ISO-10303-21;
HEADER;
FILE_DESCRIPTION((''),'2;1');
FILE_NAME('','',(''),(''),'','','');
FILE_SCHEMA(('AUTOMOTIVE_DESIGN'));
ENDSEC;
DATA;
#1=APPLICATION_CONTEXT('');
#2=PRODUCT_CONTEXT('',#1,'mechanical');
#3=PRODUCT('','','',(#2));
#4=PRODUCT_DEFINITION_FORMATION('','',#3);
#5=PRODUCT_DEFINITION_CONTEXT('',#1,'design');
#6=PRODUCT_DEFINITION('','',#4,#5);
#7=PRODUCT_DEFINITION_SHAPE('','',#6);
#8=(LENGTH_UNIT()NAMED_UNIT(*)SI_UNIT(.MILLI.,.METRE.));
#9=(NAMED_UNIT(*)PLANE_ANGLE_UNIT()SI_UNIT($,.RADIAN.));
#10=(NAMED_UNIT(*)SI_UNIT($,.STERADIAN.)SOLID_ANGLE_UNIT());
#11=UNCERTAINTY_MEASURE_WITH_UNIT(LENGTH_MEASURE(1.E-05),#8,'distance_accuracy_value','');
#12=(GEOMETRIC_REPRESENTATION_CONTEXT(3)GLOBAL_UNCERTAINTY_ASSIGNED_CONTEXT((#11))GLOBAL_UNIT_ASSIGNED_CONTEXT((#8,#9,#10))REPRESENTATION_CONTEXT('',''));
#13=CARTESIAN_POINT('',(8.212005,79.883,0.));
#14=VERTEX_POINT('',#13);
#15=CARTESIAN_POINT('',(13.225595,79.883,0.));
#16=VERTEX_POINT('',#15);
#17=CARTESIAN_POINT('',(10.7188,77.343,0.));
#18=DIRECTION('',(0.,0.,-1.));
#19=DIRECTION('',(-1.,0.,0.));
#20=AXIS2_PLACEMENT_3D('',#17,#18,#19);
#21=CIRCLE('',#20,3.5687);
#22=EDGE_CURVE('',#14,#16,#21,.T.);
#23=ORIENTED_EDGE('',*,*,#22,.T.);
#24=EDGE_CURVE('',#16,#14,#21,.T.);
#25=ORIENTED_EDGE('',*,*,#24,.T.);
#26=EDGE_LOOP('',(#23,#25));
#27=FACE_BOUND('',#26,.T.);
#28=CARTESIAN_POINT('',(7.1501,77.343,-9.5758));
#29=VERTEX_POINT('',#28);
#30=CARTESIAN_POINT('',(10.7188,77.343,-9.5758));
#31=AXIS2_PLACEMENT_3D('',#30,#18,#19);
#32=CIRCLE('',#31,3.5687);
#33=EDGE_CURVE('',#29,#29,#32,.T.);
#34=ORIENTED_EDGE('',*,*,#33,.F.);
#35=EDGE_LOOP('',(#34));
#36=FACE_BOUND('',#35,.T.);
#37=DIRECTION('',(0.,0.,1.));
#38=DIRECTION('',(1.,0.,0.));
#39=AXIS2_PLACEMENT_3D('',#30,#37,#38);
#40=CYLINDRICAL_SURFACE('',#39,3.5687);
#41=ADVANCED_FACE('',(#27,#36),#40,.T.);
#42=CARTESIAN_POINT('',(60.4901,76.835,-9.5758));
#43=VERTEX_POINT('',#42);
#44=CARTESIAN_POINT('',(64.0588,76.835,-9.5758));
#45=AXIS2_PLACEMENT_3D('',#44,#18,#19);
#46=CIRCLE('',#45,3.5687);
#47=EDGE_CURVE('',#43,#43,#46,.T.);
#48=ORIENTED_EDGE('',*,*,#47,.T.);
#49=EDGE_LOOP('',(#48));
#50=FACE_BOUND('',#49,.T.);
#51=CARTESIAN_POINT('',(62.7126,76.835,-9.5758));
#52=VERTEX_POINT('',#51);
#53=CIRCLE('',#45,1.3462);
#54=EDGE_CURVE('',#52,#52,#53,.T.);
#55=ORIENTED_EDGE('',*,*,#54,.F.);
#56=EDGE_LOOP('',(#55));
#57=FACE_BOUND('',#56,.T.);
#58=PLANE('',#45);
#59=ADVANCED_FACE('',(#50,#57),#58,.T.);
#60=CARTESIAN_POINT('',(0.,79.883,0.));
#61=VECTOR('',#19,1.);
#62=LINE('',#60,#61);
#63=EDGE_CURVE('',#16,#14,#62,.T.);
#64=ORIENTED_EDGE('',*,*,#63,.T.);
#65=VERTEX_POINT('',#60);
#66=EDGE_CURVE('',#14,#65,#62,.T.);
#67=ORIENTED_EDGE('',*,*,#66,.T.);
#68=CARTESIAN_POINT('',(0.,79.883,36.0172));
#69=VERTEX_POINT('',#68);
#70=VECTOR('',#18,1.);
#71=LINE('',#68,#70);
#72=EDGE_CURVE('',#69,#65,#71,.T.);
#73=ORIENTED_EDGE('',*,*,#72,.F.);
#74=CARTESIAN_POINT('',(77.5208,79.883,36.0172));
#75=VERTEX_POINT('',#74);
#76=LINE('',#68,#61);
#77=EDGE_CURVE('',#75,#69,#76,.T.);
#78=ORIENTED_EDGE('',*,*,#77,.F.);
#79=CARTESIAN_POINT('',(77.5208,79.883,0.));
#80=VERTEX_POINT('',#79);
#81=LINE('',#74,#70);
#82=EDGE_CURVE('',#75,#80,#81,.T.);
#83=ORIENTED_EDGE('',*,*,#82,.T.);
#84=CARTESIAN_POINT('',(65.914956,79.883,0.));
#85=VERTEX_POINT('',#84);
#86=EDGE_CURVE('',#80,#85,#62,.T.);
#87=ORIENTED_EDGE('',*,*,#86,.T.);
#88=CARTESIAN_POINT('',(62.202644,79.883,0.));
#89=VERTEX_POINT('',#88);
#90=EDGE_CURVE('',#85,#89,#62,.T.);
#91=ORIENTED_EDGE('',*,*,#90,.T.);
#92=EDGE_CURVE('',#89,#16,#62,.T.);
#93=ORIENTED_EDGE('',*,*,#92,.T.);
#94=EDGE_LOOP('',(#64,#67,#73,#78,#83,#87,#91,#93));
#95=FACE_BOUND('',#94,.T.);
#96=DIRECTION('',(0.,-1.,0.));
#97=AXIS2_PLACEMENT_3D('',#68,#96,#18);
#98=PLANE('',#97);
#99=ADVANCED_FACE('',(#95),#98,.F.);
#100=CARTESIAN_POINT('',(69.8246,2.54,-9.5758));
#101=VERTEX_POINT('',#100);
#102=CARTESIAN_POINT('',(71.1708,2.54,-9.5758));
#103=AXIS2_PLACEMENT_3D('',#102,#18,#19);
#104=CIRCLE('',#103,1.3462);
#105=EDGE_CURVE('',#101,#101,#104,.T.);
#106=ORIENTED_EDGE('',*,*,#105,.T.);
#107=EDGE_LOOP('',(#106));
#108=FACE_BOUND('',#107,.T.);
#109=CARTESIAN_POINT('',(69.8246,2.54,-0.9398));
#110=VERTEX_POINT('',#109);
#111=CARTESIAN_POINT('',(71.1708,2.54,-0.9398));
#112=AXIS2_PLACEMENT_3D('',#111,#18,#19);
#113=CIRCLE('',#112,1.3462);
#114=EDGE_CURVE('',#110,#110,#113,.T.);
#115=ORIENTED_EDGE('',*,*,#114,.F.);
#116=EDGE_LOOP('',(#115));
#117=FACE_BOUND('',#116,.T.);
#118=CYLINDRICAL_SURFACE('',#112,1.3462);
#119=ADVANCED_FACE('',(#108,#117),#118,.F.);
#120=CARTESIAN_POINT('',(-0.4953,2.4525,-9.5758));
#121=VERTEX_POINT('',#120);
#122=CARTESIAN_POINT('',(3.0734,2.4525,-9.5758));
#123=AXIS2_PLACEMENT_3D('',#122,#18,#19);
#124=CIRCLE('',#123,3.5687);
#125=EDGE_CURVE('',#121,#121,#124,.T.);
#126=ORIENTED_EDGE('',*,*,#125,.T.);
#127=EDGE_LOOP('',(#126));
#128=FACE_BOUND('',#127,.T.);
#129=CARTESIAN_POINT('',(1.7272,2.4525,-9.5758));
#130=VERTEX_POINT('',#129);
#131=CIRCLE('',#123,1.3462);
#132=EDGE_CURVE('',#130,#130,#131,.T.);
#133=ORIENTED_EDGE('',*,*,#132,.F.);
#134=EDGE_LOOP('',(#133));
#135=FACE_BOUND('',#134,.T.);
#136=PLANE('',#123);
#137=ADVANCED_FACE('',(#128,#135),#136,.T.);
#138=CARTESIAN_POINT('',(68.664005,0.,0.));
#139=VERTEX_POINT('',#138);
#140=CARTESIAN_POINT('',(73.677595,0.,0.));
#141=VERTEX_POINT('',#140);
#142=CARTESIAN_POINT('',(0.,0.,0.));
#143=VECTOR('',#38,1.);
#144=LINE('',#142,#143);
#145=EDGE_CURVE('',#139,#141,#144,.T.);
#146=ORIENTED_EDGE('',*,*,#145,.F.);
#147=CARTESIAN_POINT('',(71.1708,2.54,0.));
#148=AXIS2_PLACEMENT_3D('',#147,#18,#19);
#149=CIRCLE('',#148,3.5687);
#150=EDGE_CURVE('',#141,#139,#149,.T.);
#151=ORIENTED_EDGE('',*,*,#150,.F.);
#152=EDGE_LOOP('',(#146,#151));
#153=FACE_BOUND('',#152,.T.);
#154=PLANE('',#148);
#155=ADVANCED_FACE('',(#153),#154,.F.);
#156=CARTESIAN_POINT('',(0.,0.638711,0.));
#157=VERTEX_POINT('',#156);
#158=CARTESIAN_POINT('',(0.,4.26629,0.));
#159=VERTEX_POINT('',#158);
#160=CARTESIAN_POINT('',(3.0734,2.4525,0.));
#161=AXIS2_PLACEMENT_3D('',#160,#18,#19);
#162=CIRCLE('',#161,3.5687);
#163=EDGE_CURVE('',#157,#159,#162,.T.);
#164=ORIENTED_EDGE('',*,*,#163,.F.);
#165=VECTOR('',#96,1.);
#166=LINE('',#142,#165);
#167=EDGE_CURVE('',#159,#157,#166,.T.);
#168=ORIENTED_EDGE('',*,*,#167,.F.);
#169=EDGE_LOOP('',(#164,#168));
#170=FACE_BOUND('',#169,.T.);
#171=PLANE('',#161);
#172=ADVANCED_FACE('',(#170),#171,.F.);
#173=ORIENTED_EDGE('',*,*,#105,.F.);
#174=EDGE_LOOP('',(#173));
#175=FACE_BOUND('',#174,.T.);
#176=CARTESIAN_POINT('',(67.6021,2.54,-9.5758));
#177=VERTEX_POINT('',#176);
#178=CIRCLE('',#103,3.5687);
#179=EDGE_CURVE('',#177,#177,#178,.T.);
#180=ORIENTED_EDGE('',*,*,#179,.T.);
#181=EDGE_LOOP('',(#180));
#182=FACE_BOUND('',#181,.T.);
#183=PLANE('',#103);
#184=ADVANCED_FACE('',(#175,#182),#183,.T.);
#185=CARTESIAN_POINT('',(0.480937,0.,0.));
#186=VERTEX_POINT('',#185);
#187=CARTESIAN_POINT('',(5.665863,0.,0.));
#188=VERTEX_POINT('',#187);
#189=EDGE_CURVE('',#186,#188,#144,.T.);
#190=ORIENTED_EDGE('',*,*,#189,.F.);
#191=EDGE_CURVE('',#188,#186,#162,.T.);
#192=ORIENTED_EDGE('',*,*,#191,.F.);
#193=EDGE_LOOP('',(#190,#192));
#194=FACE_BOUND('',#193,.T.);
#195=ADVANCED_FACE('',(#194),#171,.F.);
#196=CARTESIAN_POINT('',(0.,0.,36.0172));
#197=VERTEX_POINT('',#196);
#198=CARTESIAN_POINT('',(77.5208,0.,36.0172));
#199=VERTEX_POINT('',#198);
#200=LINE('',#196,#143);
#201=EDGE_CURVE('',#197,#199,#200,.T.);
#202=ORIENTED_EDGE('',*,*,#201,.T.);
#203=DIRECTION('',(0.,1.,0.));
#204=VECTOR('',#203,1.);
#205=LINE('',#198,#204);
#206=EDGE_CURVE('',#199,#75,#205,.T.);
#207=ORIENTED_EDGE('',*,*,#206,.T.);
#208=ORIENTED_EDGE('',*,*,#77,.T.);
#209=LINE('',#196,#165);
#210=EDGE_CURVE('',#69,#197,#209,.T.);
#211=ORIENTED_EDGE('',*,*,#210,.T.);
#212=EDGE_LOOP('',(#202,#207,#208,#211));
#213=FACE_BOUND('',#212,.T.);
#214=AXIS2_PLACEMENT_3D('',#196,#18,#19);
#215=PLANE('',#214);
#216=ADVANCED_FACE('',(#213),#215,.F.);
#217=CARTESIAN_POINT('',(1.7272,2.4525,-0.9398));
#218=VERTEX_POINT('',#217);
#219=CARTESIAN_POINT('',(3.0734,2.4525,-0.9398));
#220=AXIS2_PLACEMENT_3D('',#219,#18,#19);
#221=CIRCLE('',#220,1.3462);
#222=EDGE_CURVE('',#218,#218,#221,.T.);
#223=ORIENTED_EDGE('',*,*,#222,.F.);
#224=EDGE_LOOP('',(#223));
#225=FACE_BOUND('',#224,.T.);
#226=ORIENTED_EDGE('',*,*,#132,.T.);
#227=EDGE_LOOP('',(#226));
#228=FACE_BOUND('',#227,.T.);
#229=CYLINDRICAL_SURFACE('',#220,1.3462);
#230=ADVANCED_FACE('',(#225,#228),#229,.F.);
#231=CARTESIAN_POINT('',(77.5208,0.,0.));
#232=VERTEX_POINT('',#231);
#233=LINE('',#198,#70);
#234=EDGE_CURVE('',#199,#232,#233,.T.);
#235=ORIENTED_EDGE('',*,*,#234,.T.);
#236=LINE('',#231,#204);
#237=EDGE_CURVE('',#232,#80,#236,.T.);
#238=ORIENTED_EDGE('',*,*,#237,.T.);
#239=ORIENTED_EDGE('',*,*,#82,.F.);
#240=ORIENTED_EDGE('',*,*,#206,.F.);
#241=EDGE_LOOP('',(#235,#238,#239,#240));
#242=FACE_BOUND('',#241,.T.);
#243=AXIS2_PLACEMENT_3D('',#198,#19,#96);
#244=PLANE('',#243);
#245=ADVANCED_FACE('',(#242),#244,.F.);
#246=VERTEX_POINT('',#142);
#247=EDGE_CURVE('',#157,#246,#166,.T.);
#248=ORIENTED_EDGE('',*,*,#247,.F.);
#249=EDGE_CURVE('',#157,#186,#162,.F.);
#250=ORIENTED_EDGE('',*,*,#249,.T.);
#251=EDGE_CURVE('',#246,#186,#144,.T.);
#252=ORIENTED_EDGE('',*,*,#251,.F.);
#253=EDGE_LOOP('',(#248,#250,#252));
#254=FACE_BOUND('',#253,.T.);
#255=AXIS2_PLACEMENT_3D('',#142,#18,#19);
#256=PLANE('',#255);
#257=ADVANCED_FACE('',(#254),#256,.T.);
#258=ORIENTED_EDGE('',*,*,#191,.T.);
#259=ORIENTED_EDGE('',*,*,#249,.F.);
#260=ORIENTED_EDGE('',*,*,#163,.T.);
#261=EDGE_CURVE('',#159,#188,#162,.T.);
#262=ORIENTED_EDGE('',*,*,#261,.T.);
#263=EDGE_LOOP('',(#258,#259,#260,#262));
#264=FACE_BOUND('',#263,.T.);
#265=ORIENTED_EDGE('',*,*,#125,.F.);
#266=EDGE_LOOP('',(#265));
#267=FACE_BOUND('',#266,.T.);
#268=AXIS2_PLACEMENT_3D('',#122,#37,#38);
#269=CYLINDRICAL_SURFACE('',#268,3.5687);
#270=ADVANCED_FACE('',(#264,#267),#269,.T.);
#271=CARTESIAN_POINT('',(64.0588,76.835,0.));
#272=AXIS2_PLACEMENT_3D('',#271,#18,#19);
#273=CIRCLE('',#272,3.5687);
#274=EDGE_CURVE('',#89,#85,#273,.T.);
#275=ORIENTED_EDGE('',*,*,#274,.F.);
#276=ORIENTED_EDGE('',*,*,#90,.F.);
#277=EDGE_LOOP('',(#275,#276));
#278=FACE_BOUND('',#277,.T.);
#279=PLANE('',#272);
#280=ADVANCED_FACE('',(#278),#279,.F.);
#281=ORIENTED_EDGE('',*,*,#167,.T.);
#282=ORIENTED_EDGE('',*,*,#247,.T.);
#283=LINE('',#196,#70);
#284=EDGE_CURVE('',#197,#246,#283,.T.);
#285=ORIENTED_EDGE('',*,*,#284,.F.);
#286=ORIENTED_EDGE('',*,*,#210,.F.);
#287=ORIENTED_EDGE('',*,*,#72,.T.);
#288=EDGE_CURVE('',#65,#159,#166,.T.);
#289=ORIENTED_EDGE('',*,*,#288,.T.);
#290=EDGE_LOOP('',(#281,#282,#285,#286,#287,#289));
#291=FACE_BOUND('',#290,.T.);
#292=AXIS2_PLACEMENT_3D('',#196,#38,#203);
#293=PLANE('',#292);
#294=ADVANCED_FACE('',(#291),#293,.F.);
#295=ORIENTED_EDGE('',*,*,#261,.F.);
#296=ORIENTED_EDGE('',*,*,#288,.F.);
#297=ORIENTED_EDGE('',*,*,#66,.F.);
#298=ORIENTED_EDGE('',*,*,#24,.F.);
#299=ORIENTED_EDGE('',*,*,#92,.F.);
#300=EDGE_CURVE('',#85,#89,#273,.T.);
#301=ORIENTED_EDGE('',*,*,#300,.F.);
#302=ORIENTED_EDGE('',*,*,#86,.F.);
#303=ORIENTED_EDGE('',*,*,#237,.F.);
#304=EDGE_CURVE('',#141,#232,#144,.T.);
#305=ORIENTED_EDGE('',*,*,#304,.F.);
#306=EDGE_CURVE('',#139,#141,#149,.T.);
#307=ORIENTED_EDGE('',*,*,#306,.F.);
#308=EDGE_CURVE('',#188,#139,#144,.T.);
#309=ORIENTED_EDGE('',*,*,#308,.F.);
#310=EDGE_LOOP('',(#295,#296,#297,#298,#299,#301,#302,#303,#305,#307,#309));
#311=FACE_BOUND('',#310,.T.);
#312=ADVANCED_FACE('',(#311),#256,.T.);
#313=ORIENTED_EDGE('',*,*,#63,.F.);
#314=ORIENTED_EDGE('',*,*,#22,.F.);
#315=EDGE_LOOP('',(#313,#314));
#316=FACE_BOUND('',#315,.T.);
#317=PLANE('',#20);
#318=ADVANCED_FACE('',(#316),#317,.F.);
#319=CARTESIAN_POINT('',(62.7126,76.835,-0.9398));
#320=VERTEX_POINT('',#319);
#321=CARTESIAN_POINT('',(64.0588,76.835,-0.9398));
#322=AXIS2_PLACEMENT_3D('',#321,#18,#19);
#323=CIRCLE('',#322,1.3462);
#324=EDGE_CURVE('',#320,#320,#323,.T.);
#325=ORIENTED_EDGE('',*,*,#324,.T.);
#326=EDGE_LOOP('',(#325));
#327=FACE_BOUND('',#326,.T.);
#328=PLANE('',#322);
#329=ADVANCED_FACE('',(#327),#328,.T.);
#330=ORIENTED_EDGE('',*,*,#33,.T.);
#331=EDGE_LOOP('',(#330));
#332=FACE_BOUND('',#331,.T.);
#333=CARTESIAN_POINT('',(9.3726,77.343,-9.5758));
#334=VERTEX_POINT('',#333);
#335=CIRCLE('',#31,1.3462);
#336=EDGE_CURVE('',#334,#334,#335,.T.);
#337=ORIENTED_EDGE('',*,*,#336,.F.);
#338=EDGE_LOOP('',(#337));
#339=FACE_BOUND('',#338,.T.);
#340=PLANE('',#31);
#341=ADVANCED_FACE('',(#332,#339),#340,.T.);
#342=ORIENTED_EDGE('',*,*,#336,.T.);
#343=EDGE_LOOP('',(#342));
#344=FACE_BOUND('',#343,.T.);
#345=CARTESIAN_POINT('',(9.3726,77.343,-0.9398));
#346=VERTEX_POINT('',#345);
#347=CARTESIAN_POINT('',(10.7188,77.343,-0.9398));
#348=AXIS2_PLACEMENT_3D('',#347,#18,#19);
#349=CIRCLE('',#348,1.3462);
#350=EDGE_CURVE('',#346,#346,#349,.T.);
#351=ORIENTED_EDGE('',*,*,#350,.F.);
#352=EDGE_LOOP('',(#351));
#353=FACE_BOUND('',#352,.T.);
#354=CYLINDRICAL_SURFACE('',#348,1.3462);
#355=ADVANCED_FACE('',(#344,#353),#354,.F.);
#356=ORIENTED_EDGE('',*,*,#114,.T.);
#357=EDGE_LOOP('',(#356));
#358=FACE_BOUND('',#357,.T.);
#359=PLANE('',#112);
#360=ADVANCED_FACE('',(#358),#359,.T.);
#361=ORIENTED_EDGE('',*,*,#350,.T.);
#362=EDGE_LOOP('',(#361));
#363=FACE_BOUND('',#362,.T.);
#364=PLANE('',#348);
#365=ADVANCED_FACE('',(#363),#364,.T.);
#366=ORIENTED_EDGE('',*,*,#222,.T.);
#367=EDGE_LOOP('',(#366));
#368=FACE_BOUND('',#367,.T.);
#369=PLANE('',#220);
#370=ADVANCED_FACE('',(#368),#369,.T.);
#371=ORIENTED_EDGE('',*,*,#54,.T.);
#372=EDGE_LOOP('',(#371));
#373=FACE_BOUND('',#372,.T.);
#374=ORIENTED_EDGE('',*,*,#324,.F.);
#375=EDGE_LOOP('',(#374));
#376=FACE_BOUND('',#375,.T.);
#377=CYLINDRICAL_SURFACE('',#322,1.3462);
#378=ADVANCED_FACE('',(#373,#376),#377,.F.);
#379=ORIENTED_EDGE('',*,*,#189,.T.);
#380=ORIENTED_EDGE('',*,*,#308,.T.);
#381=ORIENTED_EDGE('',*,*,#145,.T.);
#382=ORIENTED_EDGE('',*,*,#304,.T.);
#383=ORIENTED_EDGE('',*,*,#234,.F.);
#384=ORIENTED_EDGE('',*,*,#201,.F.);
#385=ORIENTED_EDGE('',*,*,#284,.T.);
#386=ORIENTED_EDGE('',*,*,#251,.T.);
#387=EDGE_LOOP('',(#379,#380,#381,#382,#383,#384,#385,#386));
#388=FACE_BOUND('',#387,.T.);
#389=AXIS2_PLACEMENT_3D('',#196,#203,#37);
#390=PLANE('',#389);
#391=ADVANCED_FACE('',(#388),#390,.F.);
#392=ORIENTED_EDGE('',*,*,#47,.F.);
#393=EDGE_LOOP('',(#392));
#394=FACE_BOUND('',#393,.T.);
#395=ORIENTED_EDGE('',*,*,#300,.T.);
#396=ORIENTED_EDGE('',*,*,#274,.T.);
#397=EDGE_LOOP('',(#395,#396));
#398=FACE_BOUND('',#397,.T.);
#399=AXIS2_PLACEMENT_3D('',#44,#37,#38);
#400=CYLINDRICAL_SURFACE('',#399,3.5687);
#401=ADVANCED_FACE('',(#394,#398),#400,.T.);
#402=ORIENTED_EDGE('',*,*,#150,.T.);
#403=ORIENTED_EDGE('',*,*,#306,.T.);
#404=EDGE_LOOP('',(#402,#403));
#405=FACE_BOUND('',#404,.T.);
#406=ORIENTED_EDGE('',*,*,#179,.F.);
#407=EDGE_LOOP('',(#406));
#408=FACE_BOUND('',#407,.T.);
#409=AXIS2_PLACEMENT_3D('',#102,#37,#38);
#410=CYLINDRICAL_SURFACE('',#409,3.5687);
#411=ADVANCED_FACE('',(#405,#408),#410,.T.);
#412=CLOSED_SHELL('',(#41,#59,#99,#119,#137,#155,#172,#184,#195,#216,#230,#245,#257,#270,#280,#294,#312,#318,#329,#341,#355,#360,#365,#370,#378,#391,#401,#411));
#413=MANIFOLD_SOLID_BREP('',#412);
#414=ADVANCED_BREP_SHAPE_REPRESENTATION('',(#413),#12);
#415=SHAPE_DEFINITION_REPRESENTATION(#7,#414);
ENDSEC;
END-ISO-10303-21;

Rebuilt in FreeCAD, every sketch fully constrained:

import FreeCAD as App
import Part
import Sketcher

V = App.Vector
Q = App.Units.Quantity


def add_polygon(sketch, points):
    """Adds a closed chain of lines whose ends are joined by coincident constraints."""
    first, n = sketch.GeometryCount, len(points)
    for a, b in zip(points, points[1:] + points[:1]):
        sketch.addGeometry(Part.LineSegment(App.Vector(*a, 0), App.Vector(*b, 0)), False)
    for i in range(n):
        sketch.addConstraint(Sketcher.Constraint("Coincident", first + i, 2, first + (i + 1) % n, 1))

doc = App.newDocument("Part")
params = doc.addObject("Spreadsheet::Sheet", "Params")
for row, (alias, value) in enumerate([
    ("sketch1_width", "3.052 in"),
    ("sketch1_height", "3.145 in"),
    ("pad1_length", "1.418 in"),
    ("sketch2_diameter", "0.281 in"),
    ("pad2_length", "0.377 in"),
    ("sketch3_diameter", "0.281 in"),
    ("pad3_length", "0.377 in"),
    ("sketch4_diameter", "0.106 in"),
    ("pocket1_length", "0.34 in"),
], start=1):
    params.set(f"A{row}", alias)
    params.set(f"B{row}", "=" + value)
    params.setAlias(f"B{row}", alias)

body = doc.addObject("PartDesign::Body", "Body")

# Sketch on XY plane
sketch1 = doc.addObject("Sketcher::SketchObject", "Sketch")
body.addObject(sketch1)
sketch1.AttachmentSupport = (doc.XY_Plane, [""])
sketch1.MapMode = "FlatFace"
add_polygon(sketch1, [(0, 79.883), (0, 0), (77.5208, 0), (77.5208, 79.883)])  # lines 0-3
sketch1.addConstraint([
    Sketcher.Constraint("Vertical", 0),
    Sketcher.Constraint("Horizontal", 1),
    Sketcher.Constraint("Vertical", 2),
    Sketcher.Constraint("Horizontal", 3),
    Sketcher.Constraint("Coincident", 0, 2, -1, 1),
    Sketcher.Constraint("DistanceX", 1, 1, 1, 2, Q("3.052 in")),
    Sketcher.Constraint("DistanceY", 0, 2, 0, 1, Q("3.145 in")),
])
sketch1.setExpression("Constraints[9]", "Params.sketch1_width")
sketch1.setExpression("Constraints[10]", "Params.sketch1_height")
pad1 = doc.addObject("PartDesign::Pad", "Pad")
body.addObject(pad1)
pad1.Profile = sketch1
pad1.setExpression("Length", "Params.pad1_length")

# Sketch on XY plane
sketch2 = doc.addObject("Sketcher::SketchObject", "Sketch001")
body.addObject(sketch2)
sketch2.AttachmentSupport = (doc.XY_Plane, [""])
sketch2.MapMode = "FlatFace"
sketch2.addGeometry([
    Part.Circle(V(71.1708, 2.54, 0), V(0, 0, 1), 3.5687),
    Part.Circle(V(3.0734, 2.4525, 0), V(0, 0, 1), 3.5687),
], False)
sketch2.addConstraint([
    Sketcher.Constraint("Equal", 0, 1),
    Sketcher.Constraint("Diameter", 0, Q("0.281 in")),
    Sketcher.Constraint("DistanceY", -1, 1, 0, 3, Q("0.1 in")),
    Sketcher.Constraint("DistanceX", -1, 1, 0, 3, Q("2.802 in")),
    Sketcher.Constraint("DistanceX", -1, 1, 1, 3, Q("0.121 in")),
    Sketcher.Constraint("DistanceY", -1, 1, 1, 3, Q("2.4525 mm")),
])
sketch2.setExpression("Constraints[1]", "Params.sketch2_diameter")
pad2 = doc.addObject("PartDesign::Pad", "Pad001")
body.addObject(pad2)
pad2.Profile = sketch2
pad2.setExpression("Length", "Params.pad2_length")
pad2.Reversed = True

# Sketch on XY plane
sketch3 = doc.addObject("Sketcher::SketchObject", "Sketch002")
body.addObject(sketch3)
sketch3.AttachmentSupport = (doc.XY_Plane, [""])
sketch3.MapMode = "FlatFace"
sketch3.addGeometry([
    Part.Circle(V(10.7188, 77.343, 0), V(0, 0, 1), 3.5687),
    Part.Circle(V(64.0588, 76.835, 0), V(0, 0, 1), 3.5687),
], False)
sketch3.addConstraint([
    Sketcher.Constraint("Equal", 0, 1),
    Sketcher.Constraint("Diameter", 0, Q("0.281 in")),
    Sketcher.Constraint("DistanceX", 0, 3, 1, 3, Q("2.1 in")),
    Sketcher.Constraint("DistanceY", 1, 3, 0, 3, Q("0.02 in")),
    Sketcher.Constraint("DistanceX", -1, 1, 0, 3, Q("0.422 in")),
    Sketcher.Constraint("DistanceY", -1, 1, 0, 3, Q("3.045 in")),
])
sketch3.setExpression("Constraints[1]", "Params.sketch3_diameter")
pad3 = doc.addObject("PartDesign::Pad", "Pad002")
body.addObject(pad3)
pad3.Profile = sketch3
pad3.setExpression("Length", "Params.pad3_length")
pad3.Reversed = True

# Sketch on XY plane
sketch4 = doc.addObject("Sketcher::SketchObject", "Sketch003")
body.addObject(sketch4)
sketch4.AttachmentSupport = (doc.XY_Plane, [""])
sketch4.MapMode = "FlatFace"
sketch4.AttachmentOffset = App.Placement(V(0, 0, -0.377 * 25.4), App.Rotation())
sketch4.addGeometry([
    Part.Circle(V(71.1708, 2.54, 0), V(0, 0, 1), 1.3462),
    Part.Circle(V(3.0734, 2.4525, 0), V(0, 0, 1), 1.3462),
    Part.Circle(V(10.7188, 77.343, 0), V(0, 0, 1), 1.3462),
    Part.Circle(V(64.0588, 76.835, 0), V(0, 0, 1), 1.3462),
], False)
sketch4.addConstraint([
    Sketcher.Constraint("Equal", 0, 1),
    Sketcher.Constraint("Equal", 1, 2),
    Sketcher.Constraint("Equal", 2, 3),
    Sketcher.Constraint("Diameter", 0, Q("0.106 in")),
    Sketcher.Constraint("DistanceY", -1, 1, 0, 3, Q("0.1 in")),
    Sketcher.Constraint("DistanceX", 2, 3, 3, 3, Q("2.1 in")),
    Sketcher.Constraint("DistanceX", 2, 3, 0, 3, Q("2.38 in")),
    Sketcher.Constraint("DistanceY", 3, 3, 2, 3, Q("0.02 in")),
    Sketcher.Constraint("DistanceX", -1, 1, 0, 3, Q("2.802 in")),
    Sketcher.Constraint("DistanceX", -1, 1, 1, 3, Q("0.121 in")),
    Sketcher.Constraint("DistanceY", -1, 1, 2, 3, Q("3.045 in")),
    Sketcher.Constraint("DistanceY", -1, 1, 1, 3, Q("2.4525 mm")),
])
sketch4.setExpression("Constraints[3]", "Params.sketch4_diameter")
pocket1 = doc.addObject("PartDesign::Pocket", "Pocket")
body.addObject(pocket1)
pocket1.Profile = sketch4
pocket1.setExpression("Length", "Params.pocket1_length")
pocket1.Reversed = True

doc.recompute()
